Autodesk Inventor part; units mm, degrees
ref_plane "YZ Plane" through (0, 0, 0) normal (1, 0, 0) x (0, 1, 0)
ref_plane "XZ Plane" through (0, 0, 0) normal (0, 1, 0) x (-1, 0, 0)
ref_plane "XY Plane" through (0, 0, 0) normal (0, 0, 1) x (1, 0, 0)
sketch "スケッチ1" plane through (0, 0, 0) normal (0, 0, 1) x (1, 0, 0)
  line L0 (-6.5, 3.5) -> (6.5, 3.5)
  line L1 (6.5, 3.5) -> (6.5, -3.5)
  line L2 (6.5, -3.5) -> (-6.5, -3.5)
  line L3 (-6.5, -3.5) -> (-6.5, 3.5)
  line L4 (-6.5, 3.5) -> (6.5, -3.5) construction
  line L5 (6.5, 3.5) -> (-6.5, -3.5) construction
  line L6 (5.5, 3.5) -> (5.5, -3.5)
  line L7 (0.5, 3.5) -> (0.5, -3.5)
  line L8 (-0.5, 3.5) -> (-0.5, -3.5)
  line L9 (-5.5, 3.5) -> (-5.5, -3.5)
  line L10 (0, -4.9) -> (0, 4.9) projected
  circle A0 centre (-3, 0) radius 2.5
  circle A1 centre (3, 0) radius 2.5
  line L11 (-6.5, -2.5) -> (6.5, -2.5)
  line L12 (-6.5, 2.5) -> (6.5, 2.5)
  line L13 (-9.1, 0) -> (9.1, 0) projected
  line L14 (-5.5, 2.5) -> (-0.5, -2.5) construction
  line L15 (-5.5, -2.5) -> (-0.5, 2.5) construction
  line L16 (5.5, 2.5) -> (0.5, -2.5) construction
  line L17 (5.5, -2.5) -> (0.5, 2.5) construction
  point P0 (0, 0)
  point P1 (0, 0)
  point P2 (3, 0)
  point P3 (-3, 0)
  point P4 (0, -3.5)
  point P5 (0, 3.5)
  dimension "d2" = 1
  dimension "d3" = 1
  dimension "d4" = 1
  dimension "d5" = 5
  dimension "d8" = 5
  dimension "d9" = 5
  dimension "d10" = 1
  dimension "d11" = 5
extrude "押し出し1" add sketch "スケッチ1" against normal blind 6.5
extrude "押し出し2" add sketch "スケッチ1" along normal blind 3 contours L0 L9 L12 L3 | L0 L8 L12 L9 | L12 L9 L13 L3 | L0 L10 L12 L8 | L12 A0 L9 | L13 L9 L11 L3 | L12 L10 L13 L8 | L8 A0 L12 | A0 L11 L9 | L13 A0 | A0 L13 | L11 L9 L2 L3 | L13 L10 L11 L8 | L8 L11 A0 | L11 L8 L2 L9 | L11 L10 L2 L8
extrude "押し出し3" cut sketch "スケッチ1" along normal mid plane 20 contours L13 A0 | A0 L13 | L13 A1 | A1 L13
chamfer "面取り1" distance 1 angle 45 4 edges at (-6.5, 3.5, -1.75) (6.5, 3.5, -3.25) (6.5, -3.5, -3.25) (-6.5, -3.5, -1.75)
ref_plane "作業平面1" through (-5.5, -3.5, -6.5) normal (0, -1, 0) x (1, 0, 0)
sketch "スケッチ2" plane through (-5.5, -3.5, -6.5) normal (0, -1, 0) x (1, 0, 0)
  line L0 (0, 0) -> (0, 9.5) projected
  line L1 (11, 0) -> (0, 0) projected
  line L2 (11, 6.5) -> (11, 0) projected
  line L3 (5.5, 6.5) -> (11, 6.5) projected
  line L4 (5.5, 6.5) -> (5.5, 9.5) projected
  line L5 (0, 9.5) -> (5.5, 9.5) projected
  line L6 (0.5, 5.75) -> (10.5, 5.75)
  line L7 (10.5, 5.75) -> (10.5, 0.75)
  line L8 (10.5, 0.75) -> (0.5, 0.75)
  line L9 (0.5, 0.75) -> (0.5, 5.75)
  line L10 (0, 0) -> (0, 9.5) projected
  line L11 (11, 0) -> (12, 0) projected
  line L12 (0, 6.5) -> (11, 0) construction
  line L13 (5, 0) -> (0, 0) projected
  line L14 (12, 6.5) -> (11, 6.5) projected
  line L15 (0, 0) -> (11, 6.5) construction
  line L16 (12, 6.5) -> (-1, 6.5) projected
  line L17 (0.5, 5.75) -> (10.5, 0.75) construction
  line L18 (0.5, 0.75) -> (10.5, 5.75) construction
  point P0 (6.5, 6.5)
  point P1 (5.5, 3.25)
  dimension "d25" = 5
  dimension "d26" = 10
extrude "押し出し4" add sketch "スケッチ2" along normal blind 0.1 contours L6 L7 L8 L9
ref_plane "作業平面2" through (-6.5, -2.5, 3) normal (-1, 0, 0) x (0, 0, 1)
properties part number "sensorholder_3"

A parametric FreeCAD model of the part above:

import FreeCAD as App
import Part
import Sketcher
Q = App.Units.Quantity


def edges_at(feature, points):
    """Names of the edges that pass closest to the given points."""
    edges = feature.Shape.Edges
    near = lambda p: min(range(len(edges)), key=lambda i: edges[i].distToShape(Part.Vertex(*p))[0])
    return sorted({f"Edge{near(p) + 1}" for p in points})


def add_polygon(sketch, points):
    """Adds a closed chain of lines whose ends are joined by coincident constraints."""
    first, n = sketch.GeometryCount, len(points)
    for a, b in zip(points, points[1:] + points[:1]):
        sketch.addGeometry(Part.LineSegment(App.Vector(*a, 0), App.Vector(*b, 0)), False)
    for i in range(n):
        sketch.addConstraint(Sketcher.Constraint("Coincident", first + i, 2, first + (i + 1) % n, 1))

doc = App.newDocument("Part")
body = doc.addObject("PartDesign::Body", "Body")

# Sketch on XY plane
sketch1 = doc.addObject("Sketcher::SketchObject", "Sketch")
body.addObject(sketch1)
sketch1.AttachmentSupport = (doc.XY_Plane, [""])
sketch1.MapMode = "FlatFace"
add_polygon(sketch1, [(-6.5, 3.5), (-6.5, -3.5), (6.5, -3.5), (6.5, 3.5)])  # lines 0-3
sketch1.addConstraint([
    Sketcher.Constraint("Vertical", 0),
    Sketcher.Constraint("Horizontal", 1),
    Sketcher.Constraint("Vertical", 2),
    Sketcher.Constraint("Horizontal", 3),
    Sketcher.Constraint("Symmetric", 0, 2, 2, 2, -1, 1),
    Sketcher.Constraint("DistanceX", 1, 1, 1, 2, Q("13 mm")),
    Sketcher.Constraint("DistanceY", 0, 2, 0, 1, Q("7 mm")),
])
pad1 = doc.addObject("PartDesign::Pad", "Pad")
body.addObject(pad1)
pad1.Profile = sketch1
pad1.Length = 6.5
pad1.Reversed = True

# Sketch on XY plane
sketch2 = doc.addObject("Sketcher::SketchObject", "Sketch001")
body.addObject(sketch2)
sketch2.AttachmentSupport = (doc.XY_Plane, [""])
sketch2.MapMode = "FlatFace"
add_polygon(sketch2, [(-6.5, 3.5), (-6.5, -3.5), (0, -3.5), (0, 3.5)])  # lines 0-3
sketch2.addConstraint([
    Sketcher.Constraint("Vertical", 0),
    Sketcher.Constraint("Horizontal", 1),
    Sketcher.Constraint("Vertical", 2),
    Sketcher.Constraint("Horizontal", 3),
    Sketcher.Constraint("Symmetric", 1, 2, 2, 2, -1, 1),
    Sketcher.Constraint("DistanceY", 0, 2, 0, 1, Q("7 mm")),
    Sketcher.Constraint("DistanceX", 1, 1, 1, 2, Q("6.5 mm")),
])
pad2 = doc.addObject("PartDesign::Pad", "Pad001")
body.addObject(pad2)
pad2.Profile = sketch2
pad2.Length = 3

# Sketch on XY plane
sketch3 = doc.addObject("Sketcher::SketchObject", "Sketch002")
body.addObject(sketch3)
sketch3.AttachmentSupport = (doc.XY_Plane, [""])
sketch3.MapMode = "FlatFace"
sketch3.addGeometry([
    Part.Circle(App.Vector(-3, 0, 0), App.Vector(0, 0, 1), 2.5),
    Part.Circle(App.Vector(3, 0, 0), App.Vector(0, 0, 1), 2.5),
], False)
sketch3.addConstraint([
    Sketcher.Constraint("Equal", 0, 1),
    Sketcher.Constraint("Symmetric", 0, 3, 1, 3, -1, 1),
    Sketcher.Constraint("PointOnObject", 0, 3, -1),
    Sketcher.Constraint("Diameter", 0, Q("5 mm")),
    Sketcher.Constraint("DistanceX", 0, 3, -1, 1, Q("3 mm")),
])
pocket1 = doc.addObject("PartDesign::Pocket", "Pocket")
body.addObject(pocket1)
pocket1.Profile = sketch3
pocket1.Length = 20
pocket1.Midplane = True
doc.recompute()

chamfer = doc.addObject("PartDesign::Chamfer", "Chamfer")
body.addObject(chamfer)
chamfer.Base = (pocket1, edges_at(pocket1, [
    (-6.5, 3.5, -1.75),
    (6.5, 3.5, -3.25),
    (6.5, -3.5, -3.25),
    (-6.5, -3.5, -1.75),
]))
chamfer.Size = 1

# Sketch on XZ plane
sketch4 = doc.addObject("Sketcher::SketchObject", "Sketch003")
body.addObject(sketch4)
sketch4.AttachmentSupport = (doc.XZ_Plane, [""])
sketch4.MapMode = "FlatFace"
sketch4.AttachmentOffset = App.Placement(App.Vector(0, 0, 3.5), App.Rotation())
add_polygon(sketch4, [(5, -0.75), (-5, -0.75), (-5, -5.75), (5, -5.75)])  # lines 0-3
sketch4.addConstraint([
    Sketcher.Constraint("Horizontal", 0),
    Sketcher.Constraint("Vertical", 1),
    Sketcher.Constraint("Horizontal", 2),
    Sketcher.Constraint("Vertical", 3),
    Sketcher.Constraint("DistanceX", 0, 2, 0, 1, Q("10 mm")),
    Sketcher.Constraint("DistanceY", 1, 2, 1, 1, Q("5 mm")),
    Sketcher.Constraint("DistanceX", 0, 2, -1, 1, Q("5 mm")),
    Sketcher.Constraint("DistanceY", 0, 2, -1, 1, Q("0.75 mm")),
])
pad3 = doc.addObject("PartDesign::Pad", "Pad002")
body.addObject(pad3)
pad3.Profile = sketch4
pad3.Length = 0.1

doc.recompute()
